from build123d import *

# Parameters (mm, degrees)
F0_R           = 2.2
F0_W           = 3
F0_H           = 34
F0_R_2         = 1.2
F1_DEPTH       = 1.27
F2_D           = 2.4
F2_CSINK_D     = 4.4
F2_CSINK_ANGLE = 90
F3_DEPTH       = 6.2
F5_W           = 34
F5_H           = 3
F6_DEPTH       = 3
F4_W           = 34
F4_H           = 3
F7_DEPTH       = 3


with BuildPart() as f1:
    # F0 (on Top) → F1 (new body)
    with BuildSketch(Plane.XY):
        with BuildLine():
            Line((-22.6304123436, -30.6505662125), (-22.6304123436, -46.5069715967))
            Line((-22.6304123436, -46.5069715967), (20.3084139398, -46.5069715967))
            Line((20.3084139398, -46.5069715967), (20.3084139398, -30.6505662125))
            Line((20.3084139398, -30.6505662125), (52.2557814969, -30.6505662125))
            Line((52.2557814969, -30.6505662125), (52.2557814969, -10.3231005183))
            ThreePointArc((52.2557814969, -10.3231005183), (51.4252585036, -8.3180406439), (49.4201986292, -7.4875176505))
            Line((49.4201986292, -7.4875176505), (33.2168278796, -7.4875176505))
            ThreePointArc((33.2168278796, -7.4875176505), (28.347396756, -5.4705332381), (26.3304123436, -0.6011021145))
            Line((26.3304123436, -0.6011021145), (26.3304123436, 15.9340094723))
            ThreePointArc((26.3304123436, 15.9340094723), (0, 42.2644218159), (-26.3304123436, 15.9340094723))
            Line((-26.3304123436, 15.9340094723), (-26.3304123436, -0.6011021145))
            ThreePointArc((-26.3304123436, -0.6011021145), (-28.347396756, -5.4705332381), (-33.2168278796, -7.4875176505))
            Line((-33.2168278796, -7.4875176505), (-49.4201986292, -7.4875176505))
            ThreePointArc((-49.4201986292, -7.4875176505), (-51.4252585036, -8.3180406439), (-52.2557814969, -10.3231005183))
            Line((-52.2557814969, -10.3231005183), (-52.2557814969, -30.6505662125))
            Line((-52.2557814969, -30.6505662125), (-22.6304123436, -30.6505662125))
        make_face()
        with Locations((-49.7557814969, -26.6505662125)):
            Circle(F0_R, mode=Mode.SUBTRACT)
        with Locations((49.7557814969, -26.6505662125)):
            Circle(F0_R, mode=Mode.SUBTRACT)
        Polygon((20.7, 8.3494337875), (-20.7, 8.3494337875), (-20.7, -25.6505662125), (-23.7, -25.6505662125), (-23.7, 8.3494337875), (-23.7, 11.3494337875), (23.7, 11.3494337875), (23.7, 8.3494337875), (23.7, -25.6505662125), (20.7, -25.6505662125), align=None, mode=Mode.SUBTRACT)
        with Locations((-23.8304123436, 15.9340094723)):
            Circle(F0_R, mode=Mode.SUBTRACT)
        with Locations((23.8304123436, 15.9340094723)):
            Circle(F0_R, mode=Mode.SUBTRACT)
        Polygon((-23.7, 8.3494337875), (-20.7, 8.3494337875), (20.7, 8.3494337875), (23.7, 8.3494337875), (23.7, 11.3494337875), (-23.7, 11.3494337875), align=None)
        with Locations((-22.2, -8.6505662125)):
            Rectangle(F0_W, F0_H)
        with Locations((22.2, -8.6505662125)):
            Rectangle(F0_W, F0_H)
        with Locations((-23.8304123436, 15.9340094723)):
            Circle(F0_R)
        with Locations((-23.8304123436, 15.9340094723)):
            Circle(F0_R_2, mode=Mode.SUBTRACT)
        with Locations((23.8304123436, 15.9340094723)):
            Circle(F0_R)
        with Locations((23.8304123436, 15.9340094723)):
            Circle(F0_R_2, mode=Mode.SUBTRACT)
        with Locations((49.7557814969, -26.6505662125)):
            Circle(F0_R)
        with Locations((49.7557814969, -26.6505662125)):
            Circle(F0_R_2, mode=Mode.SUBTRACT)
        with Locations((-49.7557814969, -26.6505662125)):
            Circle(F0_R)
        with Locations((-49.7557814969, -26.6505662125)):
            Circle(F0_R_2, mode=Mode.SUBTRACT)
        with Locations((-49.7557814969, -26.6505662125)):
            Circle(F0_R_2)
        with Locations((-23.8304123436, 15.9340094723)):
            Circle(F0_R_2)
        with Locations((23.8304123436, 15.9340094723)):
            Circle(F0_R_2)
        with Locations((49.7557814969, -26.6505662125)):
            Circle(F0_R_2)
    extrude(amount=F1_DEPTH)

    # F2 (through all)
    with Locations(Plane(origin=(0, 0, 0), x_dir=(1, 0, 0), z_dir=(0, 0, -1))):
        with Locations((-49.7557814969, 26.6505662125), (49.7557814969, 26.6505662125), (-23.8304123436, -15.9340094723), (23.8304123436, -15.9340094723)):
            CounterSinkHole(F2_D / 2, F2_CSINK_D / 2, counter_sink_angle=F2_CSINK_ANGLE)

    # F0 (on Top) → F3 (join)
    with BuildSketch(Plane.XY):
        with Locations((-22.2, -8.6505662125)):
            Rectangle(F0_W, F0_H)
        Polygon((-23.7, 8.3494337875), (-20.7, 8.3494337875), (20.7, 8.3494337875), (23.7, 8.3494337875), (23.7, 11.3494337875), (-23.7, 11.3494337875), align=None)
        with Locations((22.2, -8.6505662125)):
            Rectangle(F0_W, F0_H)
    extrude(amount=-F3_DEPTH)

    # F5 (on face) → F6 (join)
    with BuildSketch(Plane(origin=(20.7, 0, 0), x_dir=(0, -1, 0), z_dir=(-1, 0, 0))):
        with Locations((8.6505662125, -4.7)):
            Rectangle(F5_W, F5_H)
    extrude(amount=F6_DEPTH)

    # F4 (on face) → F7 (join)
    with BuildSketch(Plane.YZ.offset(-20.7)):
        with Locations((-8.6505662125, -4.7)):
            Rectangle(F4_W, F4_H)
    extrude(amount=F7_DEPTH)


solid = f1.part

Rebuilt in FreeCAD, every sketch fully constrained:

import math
import FreeCAD as App
import Part
import Sketcher

V = App.Vector
Q = App.Units.Quantity


def add_polygon(sketch, points):
    """Adds a closed chain of lines whose ends are joined by coincident constraints."""
    first, n = sketch.GeometryCount, len(points)
    for a, b in zip(points, points[1:] + points[:1]):
        sketch.addGeometry(Part.LineSegment(App.Vector(*a, 0), App.Vector(*b, 0)), False)
    for i in range(n):
        sketch.addConstraint(Sketcher.Constraint("Coincident", first + i, 2, first + (i + 1) % n, 1))

doc = App.newDocument("Part")
params = doc.addObject("Spreadsheet::Sheet", "Params")
for row, (alias, value) in enumerate([
    ("pad1_length", "1.27 mm"),
    ("sketch2_diameter", "2.4 mm"),
    ("hole_diameter", "2.4 mm"),
    ("hole_csink_diameter", "4.4 mm"),
    ("sketch3_width", "3 mm"),
    ("sketch3_height", "34 mm"),
    ("sketch3_height2", "37 mm"),
    ("sketch3_width2", "41.4 mm"),
    ("pad2_length", "6.2 mm"),
    ("sketch4_width", "34 mm"),
    ("sketch4_height", "3 mm"),
    ("pad3_length", "3 mm"),
    ("sketch5_width", "34 mm"),
    ("sketch5_height", "3 mm"),
    ("pad4_length", "3 mm"),
], start=1):
    params.set(f"A{row}", alias)
    params.set(f"B{row}", "=" + value)
    params.setAlias(f"B{row}", alias)

body = doc.addObject("PartDesign::Body", "Body")

# Sketch on XY plane
sketch1 = body.newObject("Sketcher::SketchObject", "Sketch")
sketch1.AttachmentSupport = (doc.getObject("XY_Plane"), [""])
sketch1.MapMode = "FlatFace"
sketch1.addGeometry([
    Part.LineSegment(V(-22.630412, -30.650566, 0), V(-22.630412, -46.506972, 0)),  # 0
    Part.LineSegment(V(-22.630412, -46.506972, 0), V(20.308414, -46.506972, 0)),  # 1
    Part.LineSegment(V(20.308414, -46.506972, 0), V(20.308414, -30.650566, 0)),  # 2
    Part.LineSegment(V(20.308414, -30.650566, 0), V(52.255781, -30.650566, 0)),  # 3
    Part.LineSegment(V(52.255781, -30.650566, 0), V(52.255781, -10.323101, 0)),  # 4
    Part.ArcOfCircle(Part.Circle(V(49.420199, -10.323101, 0), V(0, 0, 1), 2.835583), math.radians(0), math.radians(90)),  # 5
    Part.LineSegment(V(49.420199, -7.487518, 0), V(33.216828, -7.487518, 0)),  # 6
    Part.ArcOfCircle(Part.Circle(V(33.216828, -0.601102, 0), V(0, 0, 1), 6.886416), math.radians(180), math.radians(270)),  # 7
    Part.LineSegment(V(26.330412, -0.601102, 0), V(26.330412, 15.934009, 0)),  # 8
    Part.ArcOfCircle(Part.Circle(V(0, 15.934009, 0), V(0, 0, 1), 26.330412), math.radians(0), math.radians(180)),  # 9
    Part.LineSegment(V(-26.330412, 15.934009, 0), V(-26.330412, -0.601102, 0)),  # 10
    Part.ArcOfCircle(Part.Circle(V(-33.216828, -0.601102, 0), V(0, 0, 1), 6.886416), math.radians(-90), math.radians(0)),  # 11
    Part.LineSegment(V(-33.216828, -7.487518, 0), V(-49.420199, -7.487518, 0)),  # 12
    Part.ArcOfCircle(Part.Circle(V(-49.420199, -10.323101, 0), V(0, 0, 1), 2.835583), math.radians(90), math.radians(180)),  # 13
    Part.LineSegment(V(-52.255781, -10.323101, 0), V(-52.255781, -30.650566, 0)),  # 14
    Part.LineSegment(V(-52.255781, -30.650566, 0), V(-22.630412, -30.650566, 0)),  # 15
], False)
sketch1.addConstraint([
    Sketcher.Constraint("Coincident", 0, 2, 1, 1),
    Sketcher.Constraint("Coincident", 1, 2, 2, 1),
    Sketcher.Constraint("Coincident", 2, 2, 3, 1),
    Sketcher.Constraint("Coincident", 3, 2, 4, 1),
    Sketcher.Constraint("Tangent", 4, 2, 5, 1),
    Sketcher.Constraint("Tangent", 5, 2, 6, 1),
    Sketcher.Constraint("Tangent", 6, 2, 7, 2),
    Sketcher.Constraint("Tangent", 7, 1, 8, 1),
    Sketcher.Constraint("Tangent", 8, 2, 9, 1),
    Sketcher.Constraint("Tangent", 9, 2, 10, 1),
    Sketcher.Constraint("Tangent", 10, 2, 11, 2),
    Sketcher.Constraint("Tangent", 11, 1, 12, 1),
    Sketcher.Constraint("Tangent", 12, 2, 13, 1),
    Sketcher.Constraint("Tangent", 13, 2, 14, 1),
    Sketcher.Constraint("Coincident", 14, 2, 15, 1),
    Sketcher.Constraint("Coincident", 15, 2, 0, 1),
    Sketcher.Constraint("Vertical", 0),
    Sketcher.Constraint("Horizontal", 1),
    Sketcher.Constraint("Vertical", 2),
    Sketcher.Constraint("Horizontal", 3),
    Sketcher.Constraint("Vertical", 4),
    Sketcher.Constraint("Horizontal", 6),
    Sketcher.Constraint("Vertical", 8),
    Sketcher.Constraint("Vertical", 10),
    Sketcher.Constraint("Horizontal", 12),
    Sketcher.Constraint("Vertical", 14),
    Sketcher.Constraint("Horizontal", 15),
    Sketcher.Constraint("Equal", 7, 11),
    Sketcher.Constraint("Equal", 5, 13),
    Sketcher.Constraint("Symmetric", 7, 3, 11, 3, -2),
    Sketcher.Constraint("Symmetric", 3, 2, 14, 2, -2),
    Sketcher.Constraint("DistanceX", 10, 2, 0, 2, Q("3.7 mm")),
    Sketcher.Constraint("Radius", 5, Q("2.835583 mm")),
    Sketcher.Constraint("Radius", 7, Q("6.886416 mm")),
    Sketcher.Constraint("Radius", 9, Q("26.330412 mm")),
    Sketcher.Constraint("DistanceX", 6, 2, 6, 1, Q("16.203371 mm")),
    Sketcher.Constraint("DistanceY", 8, 1, 8, 2, Q("16.535112 mm")),
    Sketcher.Constraint("DistanceY", 5, 3, -1, 1, Q("10.323101 mm")),
    Sketcher.Constraint("DistanceX", 1, 1, 1, 2, Q("42.938826 mm")),
    Sketcher.Constraint("DistanceY", 0, 2, 0, 1, Q("15.856405 mm")),
    Sketcher.Constraint("DistanceY", 4, 1, 4, 2, Q("20.327466 mm")),
])
pad1 = body.newObject("PartDesign::Pad", "Pad")
pad1.Profile = sketch1
pad1.setExpression("Length", "Params.pad1_length")

# Sketch on XY plane
sketch2 = body.newObject("Sketcher::SketchObject", "Sketch001")
sketch2.AttachmentSupport = (doc.getObject("XY_Plane"), [""])
sketch2.MapMode = "FlatFace"
sketch2.addGeometry([
    Part.Circle(V(-49.755781, -26.650566, 0), V(0, 0, 1), 1.2),
    Part.Circle(V(49.755781, -26.650566, 0), V(0, 0, 1), 1.2),
    Part.Circle(V(-23.830412, 15.934009, 0), V(0, 0, 1), 1.2),
    Part.Circle(V(23.830412, 15.934009, 0), V(0, 0, 1), 1.2),
], False)
sketch2.addConstraint([
    Sketcher.Constraint("Equal", 0, 1),
    Sketcher.Constraint("Equal", 1, 2),
    Sketcher.Constraint("Equal", 2, 3),
    Sketcher.Constraint("Symmetric", 0, 3, 1, 3, -2),
    Sketcher.Constraint("Symmetric", 2, 3, 3, 3, -2),
    Sketcher.Constraint("Diameter", 0, Q("2.4 mm")),
    Sketcher.Constraint("DistanceX", 0, 3, -1, 1, Q("49.755781 mm")),
    Sketcher.Constraint("DistanceY", -1, 1, 2, 3, Q("15.934009 mm")),
    Sketcher.Constraint("DistanceX", 0, 3, 2, 3, Q("25.925369 mm")),
    Sketcher.Constraint("DistanceY", 0, 3, -1, 1, Q("26.650566 mm")),
])
sketch2.setExpression("Constraints[5]", "Params.sketch2_diameter")
doc.recompute()
hole = body.newObject("PartDesign::Hole", "Hole")
hole.Profile = sketch2
hole.ThreadType = "None"
hole.setExpression("Diameter", "Params.hole_diameter")
hole.DepthType = "ThroughAll"
hole.HoleCutType = "Countersink"
hole.setExpression("HoleCutDiameter", "Params.hole_csink_diameter")
hole.HoleCutCountersinkAngle = 90
hole.Reversed = True

# Sketch on XY plane
sketch3 = body.newObject("Sketcher::SketchObject", "Sketch002")
sketch3.AttachmentSupport = (doc.getObject("XY_Plane"), [""])
sketch3.MapMode = "FlatFace"
add_polygon(sketch3, [(-23.7, -25.650566), (-20.7, -25.650566), (-20.7, 8.349434), (20.7, 8.349434), (20.7, -25.650566), (23.7, -25.650566), (23.7, 11.349434), (-23.7, 11.349434)])  # lines 0-7
sketch3.addConstraint([
    Sketcher.Constraint("Horizontal", 0),
    Sketcher.Constraint("Vertical", 1),
    Sketcher.Constraint("Horizontal", 2),
    Sketcher.Constraint("Vertical", 3),
    Sketcher.Constraint("Horizontal", 4),
    Sketcher.Constraint("Vertical", 5),
    Sketcher.Constraint("Horizontal", 6),
    Sketcher.Constraint("Vertical", 7),
    Sketcher.Constraint("Symmetric", 0, 2, 3, 2, -2),
    Sketcher.Constraint("Equal", 0, 4),
    Sketcher.Constraint("DistanceX", 0, 1, 0, 2, Q("3 mm")),
    Sketcher.Constraint("DistanceY", 1, 1, 1, 2, Q("34 mm")),
    Sketcher.Constraint("DistanceY", 5, 1, 5, 2, Q("37 mm")),
    Sketcher.Constraint("DistanceX", 2, 1, 2, 2, Q("41.4 mm")),
    Sketcher.Constraint("DistanceY", 0, 2, -1, 1, Q("25.650566 mm")),
])
sketch3.setExpression("Constraints[18]", "Params.sketch3_width")
sketch3.setExpression("Constraints[19]", "Params.sketch3_height")
sketch3.setExpression("Constraints[20]", "Params.sketch3_height2")
sketch3.setExpression("Constraints[21]", "Params.sketch3_width2")
pad2 = body.newObject("PartDesign::Pad", "Pad001")
pad2.Profile = sketch3
pad2.setExpression("Length", "Params.pad2_length")
pad2.Reversed = True

# Sketch on YZ plane
sketch4 = body.newObject("Sketcher::SketchObject", "Sketch003")
sketch4.AttachmentSupport = (doc.getObject("YZ_Plane"), [""])
sketch4.MapMode = "FlatFace"
sketch4.AttachmentOffset = App.Placement(V(0, 0, 20.7), App.Rotation())
add_polygon(sketch4, [(8.349434, -3.2), (8.349434, -6.2), (-25.650566, -6.2), (-25.650566, -3.2)])  # lines 0-3
sketch4.addConstraint([
    Sketcher.Constraint("Vertical", 0),
    Sketcher.Constraint("Horizontal", 1),
    Sketcher.Constraint("Vertical", 2),
    Sketcher.Constraint("Horizontal", 3),
    Sketcher.Constraint("DistanceX", 1, 2, 1, 1, Q("34 mm")),
    Sketcher.Constraint("DistanceY", 0, 2, 0, 1, Q("3 mm")),
    Sketcher.Constraint("DistanceY", 0, 2, -1, 1, Q("6.2 mm")),
    Sketcher.Constraint("DistanceX", -1, 1, 0, 2, Q("8.349434 mm")),
])
sketch4.setExpression("Constraints[8]", "Params.sketch4_width")
sketch4.setExpression("Constraints[9]", "Params.sketch4_height")
pad3 = body.newObject("PartDesign::Pad", "Pad002")
pad3.Profile = sketch4
pad3.setExpression("Length", "Params.pad3_length")
pad3.Reversed = True

# Sketch on YZ plane
sketch5 = body.newObject("Sketcher::SketchObject", "Sketch004")
sketch5.AttachmentSupport = (doc.getObject("YZ_Plane"), [""])
sketch5.MapMode = "FlatFace"
sketch5.AttachmentOffset = App.Placement(V(0, 0, -20.7), App.Rotation())
add_polygon(sketch5, [(-25.650566, -3.2), (-25.650566, -6.2), (8.349434, -6.2), (8.349434, -3.2)])  # lines 0-3
sketch5.addConstraint([
    Sketcher.Constraint("Vertical", 0),
    Sketcher.Constraint("Horizontal", 1),
    Sketcher.Constraint("Vertical", 2),
    Sketcher.Constraint("Horizontal", 3),
    Sketcher.Constraint("DistanceX", 1, 1, 1, 2, Q("34 mm")),
    Sketcher.Constraint("DistanceY", 0, 2, 0, 1, Q("3 mm")),
    Sketcher.Constraint("DistanceY", 0, 2, -1, 1, Q("6.2 mm")),
    Sketcher.Constraint("DistanceX", 0, 2, -1, 1, Q("25.650566 mm")),
])
sketch5.setExpression("Constraints[8]", "Params.sketch5_width")
sketch5.setExpression("Constraints[9]", "Params.sketch5_height")
pad4 = body.newObject("PartDesign::Pad", "Pad003")
pad4.Profile = sketch5
pad4.setExpression("Length", "Params.pad4_length")

doc.recompute()
